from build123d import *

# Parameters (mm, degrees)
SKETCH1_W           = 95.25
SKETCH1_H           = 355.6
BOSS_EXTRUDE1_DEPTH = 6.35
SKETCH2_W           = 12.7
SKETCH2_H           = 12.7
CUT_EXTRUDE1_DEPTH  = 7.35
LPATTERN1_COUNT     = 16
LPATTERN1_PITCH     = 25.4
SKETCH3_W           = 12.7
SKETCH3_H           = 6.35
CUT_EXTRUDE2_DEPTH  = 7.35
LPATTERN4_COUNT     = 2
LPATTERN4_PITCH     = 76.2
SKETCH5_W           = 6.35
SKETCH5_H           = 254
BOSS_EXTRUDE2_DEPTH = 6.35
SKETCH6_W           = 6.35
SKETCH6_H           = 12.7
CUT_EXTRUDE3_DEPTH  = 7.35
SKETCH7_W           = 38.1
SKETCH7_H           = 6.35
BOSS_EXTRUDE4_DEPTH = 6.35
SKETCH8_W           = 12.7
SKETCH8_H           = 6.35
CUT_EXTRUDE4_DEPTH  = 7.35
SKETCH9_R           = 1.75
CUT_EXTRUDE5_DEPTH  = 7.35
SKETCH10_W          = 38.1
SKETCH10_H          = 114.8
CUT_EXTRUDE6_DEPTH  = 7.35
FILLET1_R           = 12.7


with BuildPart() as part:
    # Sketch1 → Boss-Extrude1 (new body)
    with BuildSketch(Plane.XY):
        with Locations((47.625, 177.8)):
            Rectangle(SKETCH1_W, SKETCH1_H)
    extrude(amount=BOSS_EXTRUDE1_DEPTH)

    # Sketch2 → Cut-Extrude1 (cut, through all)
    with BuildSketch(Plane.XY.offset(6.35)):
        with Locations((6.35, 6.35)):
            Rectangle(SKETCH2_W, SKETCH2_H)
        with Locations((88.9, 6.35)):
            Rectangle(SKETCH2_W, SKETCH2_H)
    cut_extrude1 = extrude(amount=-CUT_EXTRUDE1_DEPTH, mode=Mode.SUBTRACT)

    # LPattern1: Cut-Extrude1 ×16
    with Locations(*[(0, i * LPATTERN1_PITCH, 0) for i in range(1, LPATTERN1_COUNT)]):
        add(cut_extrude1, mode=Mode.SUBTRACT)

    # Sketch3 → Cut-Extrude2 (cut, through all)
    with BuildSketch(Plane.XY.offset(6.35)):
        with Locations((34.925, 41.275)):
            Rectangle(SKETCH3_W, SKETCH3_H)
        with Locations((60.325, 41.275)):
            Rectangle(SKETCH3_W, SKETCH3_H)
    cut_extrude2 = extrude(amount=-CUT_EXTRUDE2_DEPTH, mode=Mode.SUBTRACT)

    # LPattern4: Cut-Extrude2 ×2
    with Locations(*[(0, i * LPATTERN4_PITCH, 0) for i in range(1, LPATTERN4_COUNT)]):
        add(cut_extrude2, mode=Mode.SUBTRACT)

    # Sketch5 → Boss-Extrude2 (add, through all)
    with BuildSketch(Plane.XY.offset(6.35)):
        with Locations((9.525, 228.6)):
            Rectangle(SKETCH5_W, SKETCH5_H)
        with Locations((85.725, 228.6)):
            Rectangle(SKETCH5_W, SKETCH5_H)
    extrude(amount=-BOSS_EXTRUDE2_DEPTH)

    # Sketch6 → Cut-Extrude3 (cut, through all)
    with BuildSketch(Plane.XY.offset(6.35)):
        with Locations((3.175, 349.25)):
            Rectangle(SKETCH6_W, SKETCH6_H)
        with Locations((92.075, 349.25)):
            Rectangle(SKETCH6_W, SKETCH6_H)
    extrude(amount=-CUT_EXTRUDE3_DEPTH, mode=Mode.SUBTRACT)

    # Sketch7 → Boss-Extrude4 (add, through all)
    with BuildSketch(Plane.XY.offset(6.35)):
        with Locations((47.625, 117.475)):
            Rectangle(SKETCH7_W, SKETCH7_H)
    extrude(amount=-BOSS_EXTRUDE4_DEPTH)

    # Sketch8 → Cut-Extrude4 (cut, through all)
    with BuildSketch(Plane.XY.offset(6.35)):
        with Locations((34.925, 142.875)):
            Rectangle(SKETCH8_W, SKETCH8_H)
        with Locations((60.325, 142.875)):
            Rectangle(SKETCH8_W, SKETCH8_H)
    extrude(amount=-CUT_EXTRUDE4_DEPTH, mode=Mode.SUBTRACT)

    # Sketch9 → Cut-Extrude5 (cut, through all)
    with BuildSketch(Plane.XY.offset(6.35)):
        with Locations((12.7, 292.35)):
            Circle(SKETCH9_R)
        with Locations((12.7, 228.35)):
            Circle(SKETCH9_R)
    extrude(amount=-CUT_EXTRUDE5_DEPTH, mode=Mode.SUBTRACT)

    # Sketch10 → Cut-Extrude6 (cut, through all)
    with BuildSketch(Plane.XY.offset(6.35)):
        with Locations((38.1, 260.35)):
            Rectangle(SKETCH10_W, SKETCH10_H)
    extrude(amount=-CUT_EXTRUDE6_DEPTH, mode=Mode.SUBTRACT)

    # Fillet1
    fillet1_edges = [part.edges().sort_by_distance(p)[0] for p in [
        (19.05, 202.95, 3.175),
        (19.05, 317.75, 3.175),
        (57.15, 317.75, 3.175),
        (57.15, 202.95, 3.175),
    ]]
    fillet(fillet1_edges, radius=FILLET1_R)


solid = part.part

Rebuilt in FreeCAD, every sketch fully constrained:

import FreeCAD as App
import Part
import Sketcher
from FreeCAD import Vector
Q = App.Units.Quantity


def edges_at(feature, points):
    """Names of the edges that pass closest to the given points."""
    edges = feature.Shape.Edges
    near = lambda p: min(range(len(edges)), key=lambda i: edges[i].distToShape(Part.Vertex(*p))[0])
    return sorted({f"Edge{near(p) + 1}" for p in points})

doc = App.newDocument("Part")
params = doc.addObject("Spreadsheet::Sheet", "Params")
for row, (alias, value) in enumerate([
    ("sketch1_height", "14 in"),
    ("sketch1_width", "3.75 in"),
    ("pad1_length", "0.25 in"),
    ("sketch2_width", "0.5 in"),
    ("linearpattern_pitch", "1 in"),
    ("sketch3_width", "0.5 in"),
    ("sketch3_height", "0.25 in"),
    ("linearpattern2_pitch", "3 in"),
    ("sketch4_height", "10 in"),
    ("sketch4_width", "0.25 in"),
    ("sketch5_height", "0.5 in"),
    ("sketch5_width", "0.25 in"),
    ("sketch6_width", "1.5 in"),
    ("sketch6_height", "0.25 in"),
    ("sketch7_width", "0.5 in"),
    ("sketch7_height", "0.25 in"),
    ("sketch9_width", "1.5 in"),
    ("fillet_radius", "0.5 in"),
], start=1):
    params.set(f"A{row}", alias)
    params.set(f"B{row}", "=" + value)
    params.setAlias(f"B{row}", alias)

body = doc.addObject("PartDesign::Body", "Body")

# Sketch on XY plane
sketch1 = body.newObject("Sketcher::SketchObject", "Sketch")
sketch1.AttachmentSupport = (doc.getObject("XY_Plane"), [""])
sketch1.MapMode = "FlatFace"
sketch1.addGeometry([
    Part.LineSegment(Vector(0, 356, 0), Vector(0, 0, 0)),
    Part.LineSegment(Vector(0, 0, 0), Vector(95, 0, 0)),
    Part.LineSegment(Vector(95, 0, 0), Vector(95, 356, 0)),
    Part.LineSegment(Vector(95, 356, 0), Vector(0, 356, 0)),
], False)
sketch1.addConstraint([
    Sketcher.Constraint("Coincident", 0, 2, 1, 1),
    Sketcher.Constraint("Coincident", 1, 2, 2, 1),
    Sketcher.Constraint("Coincident", 2, 2, 3, 1),
    Sketcher.Constraint("Coincident", 3, 2, 0, 1),
    Sketcher.Constraint("Vertical", 0),
    Sketcher.Constraint("Horizontal", 1),
    Sketcher.Constraint("Vertical", 2),
    Sketcher.Constraint("Horizontal", 3),
    Sketcher.Constraint("Coincident", 0, 2, -1, 1),
    Sketcher.Constraint("DistanceY", 0, 2, 0, 1, Q("14 in")),
    Sketcher.Constraint("DistanceX", 1, 1, 1, 2, Q("3.75 in")),
])
sketch1.setExpression("Constraints[9]", "Params.sketch1_height")
sketch1.setExpression("Constraints[10]", "Params.sketch1_width")
pad1 = body.newObject("PartDesign::Pad", "Pad")
pad1.Profile = sketch1
pad1.setExpression("Length", "Params.pad1_length")

# Sketch on XY plane
sketch2 = body.newObject("Sketcher::SketchObject", "Sketch001")
sketch2.AttachmentSupport = (doc.getObject("XY_Plane"), [""])
sketch2.MapMode = "FlatFace"
sketch2.AttachmentOffset = App.Placement(Vector(0, 0, 0.25 * 25.4), App.Rotation())
sketch2.addGeometry([
    Part.LineSegment(Vector(0, 13, 0), Vector(0, 0, 0)),  # 0
    Part.LineSegment(Vector(0, 0, 0), Vector(13, 0, 0)),  # 1
    Part.LineSegment(Vector(13, 0, 0), Vector(13, 13, 0)),  # 2
    Part.LineSegment(Vector(13, 13, 0), Vector(0, 13, 0)),  # 3
    Part.LineSegment(Vector(83, 13, 0), Vector(83, 0, 0)),  # 4
    Part.LineSegment(Vector(83, 0, 0), Vector(95, 0, 0)),  # 5
    Part.LineSegment(Vector(95, 0, 0), Vector(95, 13, 0)),  # 6
    Part.LineSegment(Vector(95, 13, 0), Vector(83, 13, 0)),  # 7
], False)
sketch2.addConstraint([
    Sketcher.Constraint("Coincident", 0, 2, 1, 1),
    Sketcher.Constraint("Coincident", 1, 2, 2, 1),
    Sketcher.Constraint("Coincident", 2, 2, 3, 1),
    Sketcher.Constraint("Coincident", 3, 2, 0, 1),
    Sketcher.Constraint("Coincident", 4, 2, 5, 1),
    Sketcher.Constraint("Coincident", 5, 2, 6, 1),
    Sketcher.Constraint("Coincident", 6, 2, 7, 1),
    Sketcher.Constraint("Coincident", 7, 2, 4, 1),
    Sketcher.Constraint("Vertical", 0),
    Sketcher.Constraint("Horizontal", 1),
    Sketcher.Constraint("Vertical", 2),
    Sketcher.Constraint("Horizontal", 3),
    Sketcher.Constraint("Vertical", 4),
    Sketcher.Constraint("Horizontal", 5),
    Sketcher.Constraint("Vertical", 6),
    Sketcher.Constraint("Horizontal", 7),
    Sketcher.Constraint("Coincident", 0, 2, -1, 1),
    Sketcher.Constraint("PointOnObject", 4, 2, -1),
    Sketcher.Constraint("Horizontal", 3, 2, 6, 2),
    Sketcher.Constraint("Equal", 3, 5),
    Sketcher.Constraint("Equal", 7, 0),
    Sketcher.Constraint("DistanceX", 1, 1, 1, 2, Q("0.5 in")),
    Sketcher.Constraint("DistanceX", -1, 1, 4, 2, Q("3.25 in")),
])
sketch2.setExpression("Constraints[21]", "Params.sketch2_width")
pocket1 = body.newObject("PartDesign::Pocket", "Pocket")
pocket1.Profile = sketch2
pocket1.Type = "ThroughAll"
doc.recompute()

linearpattern = body.newObject("PartDesign::LinearPattern", "LinearPattern")
linearpattern.Originals = [pocket1]
linearpattern.Direction = (doc.getObject("Y_Axis"), [""])
linearpattern.Mode = "offset"
linearpattern.setExpression("Offset", "Params.linearpattern_pitch")
linearpattern.Occurrences = 16
body.Tip = linearpattern

# Sketch on XY plane
sketch3 = body.newObject("Sketcher::SketchObject", "Sketch002")
sketch3.AttachmentSupport = (doc.getObject("XY_Plane"), [""])
sketch3.MapMode = "FlatFace"
sketch3.AttachmentOffset = App.Placement(Vector(0, 0, 0.25 * 25.4), App.Rotation())
sketch3.addGeometry([
    Part.LineSegment(Vector(29, 44, 0), Vector(29, 38, 0)),  # 0
    Part.LineSegment(Vector(29, 38, 0), Vector(41, 38, 0)),  # 1
    Part.LineSegment(Vector(41, 38, 0), Vector(41, 44, 0)),  # 2
    Part.LineSegment(Vector(41, 44, 0), Vector(29, 44, 0)),  # 3
    Part.LineSegment(Vector(54, 44, 0), Vector(54, 38, 0)),  # 4
    Part.LineSegment(Vector(54, 38, 0), Vector(67, 38, 0)),  # 5
    Part.LineSegment(Vector(67, 38, 0), Vector(67, 44, 0)),  # 6
    Part.LineSegment(Vector(67, 44, 0), Vector(54, 44, 0)),  # 7
], False)
sketch3.addConstraint([
    Sketcher.Constraint("Coincident", 0, 2, 1, 1),
    Sketcher.Constraint("Coincident", 1, 2, 2, 1),
    Sketcher.Constraint("Coincident", 2, 2, 3, 1),
    Sketcher.Constraint("Coincident", 3, 2, 0, 1),
    Sketcher.Constraint("Coincident", 4, 2, 5, 1),
    Sketcher.Constraint("Coincident", 5, 2, 6, 1),
    Sketcher.Constraint("Coincident", 6, 2, 7, 1),
    Sketcher.Constraint("Coincident", 7, 2, 4, 1),
    Sketcher.Constraint("Vertical", 0),
    Sketcher.Constraint("Horizontal", 1),
    Sketcher.Constraint("Vertical", 2),
    Sketcher.Constraint("Horizontal", 3),
    Sketcher.Constraint("Vertical", 4),
    Sketcher.Constraint("Horizontal", 5),
    Sketcher.Constraint("Vertical", 6),
    Sketcher.Constraint("Horizontal", 7),
    Sketcher.Constraint("Horizontal", 1, 2, 4, 2),
    Sketcher.Constraint("Horizontal", 3, 2, 6, 2),
    Sketcher.Constraint("Equal", 3, 5),
    Sketcher.Constraint("DistanceX", 1, 1, 1, 2, Q("0.5 in")),
    Sketcher.Constraint("DistanceX", 0, 2, 4, 2, Q("1 in")),
    Sketcher.Constraint("DistanceY", 0, 2, 0, 1, Q("0.25 in")),
    Sketcher.Constraint("DistanceY", -1, 1, 0, 2, Q("1.5 in")),
    Sketcher.Constraint("DistanceX", -1, 1, 0, 2, Q("1.125 in")),
])
sketch3.setExpression("Constraints[19]", "Params.sketch3_width")
sketch3.setExpression("Constraints[21]", "Params.sketch3_height")
pocket2 = body.newObject("PartDesign::Pocket", "Pocket001")
pocket2.Profile = sketch3
pocket2.Type = "ThroughAll"
doc.recompute()

linearpattern2 = body.newObject("PartDesign::LinearPattern", "LinearPattern001")
linearpattern2.Originals = [pocket2]
linearpattern2.Direction = (doc.getObject("Y_Axis"), [""])
linearpattern2.Mode = "offset"
linearpattern2.setExpression("Offset", "Params.linearpattern2_pitch")
linearpattern2.Occurrences = 2
body.Tip = linearpattern2

# Sketch on XY plane
sketch4 = body.newObject("Sketcher::SketchObject", "Sketch003")
sketch4.AttachmentSupport = (doc.getObject("XY_Plane"), [""])
sketch4.MapMode = "FlatFace"
sketch4.AttachmentOffset = App.Placement(Vector(0, 0, 0.25 * 25.4), App.Rotation())
sketch4.addGeometry([
    Part.LineSegment(Vector(6, 356, 0), Vector(6, 102, 0)),  # 0
    Part.LineSegment(Vector(6, 102, 0), Vector(13, 102, 0)),  # 1
    Part.LineSegment(Vector(13, 102, 0), Vector(13, 356, 0)),  # 2
    Part.LineSegment(Vector(13, 356, 0), Vector(6, 356, 0)),  # 3
    Part.LineSegment(Vector(83, 356, 0), Vector(83, 102, 0)),  # 4
    Part.LineSegment(Vector(83, 102, 0), Vector(89, 102, 0)),  # 5
    Part.LineSegment(Vector(89, 102, 0), Vector(89, 356, 0)),  # 6
    Part.LineSegment(Vector(89, 356, 0), Vector(83, 356, 0)),  # 7
], False)
sketch4.addConstraint([
    Sketcher.Constraint("Coincident", 0, 2, 1, 1),
    Sketcher.Constraint("Coincident", 1, 2, 2, 1),
    Sketcher.Constraint("Coincident", 2, 2, 3, 1),
    Sketcher.Constraint("Coincident", 3, 2, 0, 1),
    Sketcher.Constraint("Coincident", 4, 2, 5, 1),
    Sketcher.Constraint("Coincident", 5, 2, 6, 1),
    Sketcher.Constraint("Coincident", 6, 2, 7, 1),
    Sketcher.Constraint("Coincident", 7, 2, 4, 1),
    Sketcher.Constraint("Vertical", 0),
    Sketcher.Constraint("Horizontal", 1),
    Sketcher.Constraint("Vertical", 2),
    Sketcher.Constraint("Horizontal", 3),
    Sketcher.Constraint("Vertical", 4),
    Sketcher.Constraint("Horizontal", 5),
    Sketcher.Constraint("Vertical", 6),
    Sketcher.Constraint("Horizontal", 7),
    Sketcher.Constraint("Horizontal", 1, 2, 4, 2),
    Sketcher.Constraint("Horizontal", 3, 2, 6, 2),
    Sketcher.Constraint("Equal", 3, 5),
    Sketcher.Constraint("DistanceY", 0, 2, 0, 1, Q("10 in")),
    Sketcher.Constraint("DistanceY", -1, 1, 0, 2, Q("4 in")),
    Sketcher.Constraint("DistanceX", 0, 2, 4, 2, Q("3 in")),
    Sketcher.Constraint("DistanceX", 1, 1, 1, 2, Q("0.25 in")),
    Sketcher.Constraint("DistanceX", -1, 1, 1, 2, Q("0.5 in")),
])
sketch4.setExpression("Constraints[19]", "Params.sketch4_height")
sketch4.setExpression("Constraints[22]", "Params.sketch4_width")
pad2 = body.newObject("PartDesign::Pad", "Pad001")
pad2.Profile = sketch4
pad2.Type = "UpToLast"
pad2.Reversed = True

# Sketch on XY plane
sketch5 = body.newObject("Sketcher::SketchObject", "Sketch004")
sketch5.AttachmentSupport = (doc.getObject("XY_Plane"), [""])
sketch5.MapMode = "FlatFace"
sketch5.AttachmentOffset = App.Placement(Vector(0, 0, 0.25 * 25.4), App.Rotation())
sketch5.addGeometry([
    Part.LineSegment(Vector(0, 356, 0), Vector(0, 343, 0)),  # 0
    Part.LineSegment(Vector(0, 343, 0), Vector(6, 343, 0)),  # 1
    Part.LineSegment(Vector(6, 343, 0), Vector(6, 356, 0)),  # 2
    Part.LineSegment(Vector(6, 356, 0), Vector(0, 356, 0)),  # 3
    Part.LineSegment(Vector(89, 356, 0), Vector(89, 343, 0)),  # 4
    Part.LineSegment(Vector(89, 343, 0), Vector(95, 343, 0)),  # 5
    Part.LineSegment(Vector(95, 343, 0), Vector(95, 356, 0)),  # 6
    Part.LineSegment(Vector(95, 356, 0), Vector(89, 356, 0)),  # 7
], False)
sketch5.addConstraint([
    Sketcher.Constraint("Coincident", 0, 2, 1, 1),
    Sketcher.Constraint("Coincident", 1, 2, 2, 1),
    Sketcher.Constraint("Coincident", 2, 2, 3, 1),
    Sketcher.Constraint("Coincident", 3, 2, 0, 1),
    Sketcher.Constraint("Coincident", 4, 2, 5, 1),
    Sketcher.Constraint("Coincident", 5, 2, 6, 1),
    Sketcher.Constraint("Coincident", 6, 2, 7, 1),
    Sketcher.Constraint("Coincident", 7, 2, 4, 1),
    Sketcher.Constraint("Vertical", 0),
    Sketcher.Constraint("Horizontal", 1),
    Sketcher.Constraint("Vertical", 2),
    Sketcher.Constraint("Horizontal", 3),
    Sketcher.Constraint("Vertical", 4),
    Sketcher.Constraint("Horizontal", 5),
    Sketcher.Constraint("Vertical", 6),
    Sketcher.Constraint("Horizontal", 7),
    Sketcher.Constraint("PointOnObject", 0, 2, -2),
    Sketcher.Constraint("Horizontal", 1, 2, 4, 2),
    Sketcher.Constraint("Horizontal", 3, 2, 6, 2),
    Sketcher.Constraint("Equal", 3, 5),
    Sketcher.Constraint("DistanceY", 0, 2, 0, 1, Q("0.5 in")),
    Sketcher.Constraint("DistanceY", -1, 1, 2, 2, Q("14 in")),
    Sketcher.Constraint("DistanceX", 1, 1, 1, 2, Q("0.25 in")),
    Sketcher.Constraint("DistanceX", -1, 1, 4, 2, Q("3.5 in")),
])
sketch5.setExpression("Constraints[20]", "Params.sketch5_height")
sketch5.setExpression("Constraints[22]", "Params.sketch5_width")
pocket3 = body.newObject("PartDesign::Pocket", "Pocket002")
pocket3.Profile = sketch5
pocket3.Type = "ThroughAll"

# Sketch on XY plane
sketch6 = body.newObject("Sketcher::SketchObject", "Sketch005")
sketch6.AttachmentSupport = (doc.getObject("XY_Plane"), [""])
sketch6.MapMode = "FlatFace"
sketch6.AttachmentOffset = App.Placement(Vector(0, 0, 0.25 * 25.4), App.Rotation())
sketch6.addGeometry([
    Part.LineSegment(Vector(29, 121, 0), Vector(29, 114, 0)),
    Part.LineSegment(Vector(29, 114, 0), Vector(67, 114, 0)),
    Part.LineSegment(Vector(67, 114, 0), Vector(67, 121, 0)),
    Part.LineSegment(Vector(67, 121, 0), Vector(29, 121, 0)),
], False)
sketch6.addConstraint([
    Sketcher.Constraint("Coincident", 0, 2, 1, 1),
    Sketcher.Constraint("Coincident", 1, 2, 2, 1),
    Sketcher.Constraint("Coincident", 2, 2, 3, 1),
    Sketcher.Constraint("Coincident", 3, 2, 0, 1),
    Sketcher.Constraint("Vertical", 0),
    Sketcher.Constraint("Horizontal", 1),
    Sketcher.Constraint("Vertical", 2),
    Sketcher.Constraint("Horizontal", 3),
    Sketcher.Constraint("DistanceX", 1, 1, 1, 2, Q("1.5 in")),
    Sketcher.Constraint("DistanceY", 0, 2, 0, 1, Q("0.25 in")),
    Sketcher.Constraint("DistanceY", -1, 1, 0, 2, Q("4.5 in")),
    Sketcher.Constraint("DistanceX", -1, 1, 0, 2, Q("1.125 in")),
])
sketch6.setExpression("Constraints[8]", "Params.sketch6_width")
sketch6.setExpression("Constraints[9]", "Params.sketch6_height")
pad3 = body.newObject("PartDesign::Pad", "Pad002")
pad3.Profile = sketch6
pad3.Type = "UpToLast"
pad3.Reversed = True

# Sketch on XY plane
sketch7 = body.newObject("Sketcher::SketchObject", "Sketch006")
sketch7.AttachmentSupport = (doc.getObject("XY_Plane"), [""])
sketch7.MapMode = "FlatFace"
sketch7.AttachmentOffset = App.Placement(Vector(0, 0, 0.25 * 25.4), App.Rotation())
sketch7.addGeometry([
    Part.LineSegment(Vector(29, 146, 0), Vector(29, 140, 0)),  # 0
    Part.LineSegment(Vector(29, 140, 0), Vector(41, 140, 0)),  # 1
    Part.LineSegment(Vector(41, 140, 0), Vector(41, 146, 0)),  # 2
    Part.LineSegment(Vector(41, 146, 0), Vector(29, 146, 0)),  # 3
    Part.LineSegment(Vector(54, 146, 0), Vector(54, 140, 0)),  # 4
    Part.LineSegment(Vector(54, 140, 0), Vector(67, 140, 0)),  # 5
    Part.LineSegment(Vector(67, 140, 0), Vector(67, 146, 0)),  # 6
    Part.LineSegment(Vector(67, 146, 0), Vector(54, 146, 0)),  # 7
], False)
sketch7.addConstraint([
    Sketcher.Constraint("Coincident", 0, 2, 1, 1),
    Sketcher.Constraint("Coincident", 1, 2, 2, 1),
    Sketcher.Constraint("Coincident", 2, 2, 3, 1),
    Sketcher.Constraint("Coincident", 3, 2, 0, 1),
    Sketcher.Constraint("Coincident", 4, 2, 5, 1),
    Sketcher.Constraint("Coincident", 5, 2, 6, 1),
    Sketcher.Constraint("Coincident", 6, 2, 7, 1),
    Sketcher.Constraint("Coincident", 7, 2, 4, 1),
    Sketcher.Constraint("Vertical", 0),
    Sketcher.Constraint("Horizontal", 1),
    Sketcher.Constraint("Vertical", 2),
    Sketcher.Constraint("Horizontal", 3),
    Sketcher.Constraint("Vertical", 4),
    Sketcher.Constraint("Horizontal", 5),
    Sketcher.Constraint("Vertical", 6),
    Sketcher.Constraint("Horizontal", 7),
    Sketcher.Constraint("Horizontal", 1, 2, 4, 2),
    Sketcher.Constraint("Horizontal", 3, 2, 6, 2),
    Sketcher.Constraint("Equal", 3, 5),
    Sketcher.Constraint("DistanceX", 1, 1, 1, 2, Q("0.5 in")),
    Sketcher.Constraint("DistanceX", 0, 2, 4, 2, Q("1 in")),
    Sketcher.Constraint("DistanceY", 0, 2, 0, 1, Q("0.25 in")),
    Sketcher.Constraint("DistanceY", -1, 1, 0, 2, Q("5.5 in")),
    Sketcher.Constraint("DistanceX", -1, 1, 0, 2, Q("1.125 in")),
])
sketch7.setExpression("Constraints[19]", "Params.sketch7_width")
sketch7.setExpression("Constraints[21]", "Params.sketch7_height")
pocket4 = body.newObject("PartDesign::Pocket", "Pocket003")
pocket4.Profile = sketch7
pocket4.Type = "ThroughAll"

# Sketch on XY plane
sketch8 = body.newObject("Sketcher::SketchObject", "Sketch007")
sketch8.AttachmentSupport = (doc.getObject("XY_Plane"), [""])
sketch8.MapMode = "FlatFace"
sketch8.AttachmentOffset = App.Placement(Vector(0, 0, 0.25 * 25.4), App.Rotation())
sketch8.addGeometry([
    Part.Circle(Vector(12.7, 292.4, 0), Vector(0, 0, 1), 1.8),
    Part.Circle(Vector(12.7, 228.3, 0), Vector(0, 0, 1), 1.8),
], False)
sketch8.addConstraint([
    Sketcher.Constraint("Equal", 0, 1),
    Sketcher.Constraint("Vertical", 0, 3, 1, 3),
    Sketcher.Constraint("DistanceX", -1, 1, 0, 3, Q("0.5 in")),
    Sketcher.Constraint("Diameter", 0, 3.5),
    Sketcher.Constraint("DistanceY", -1, 1, 0, 3, 292.35),
    Sketcher.Constraint("DistanceY", -1, 1, 1, 3, 228.35),
])
pocket5 = body.newObject("PartDesign::Pocket", "Pocket004")
pocket5.Profile = sketch8
pocket5.Type = "ThroughAll"

# Sketch on XY plane
sketch9 = body.newObject("Sketcher::SketchObject", "Sketch008")
sketch9.AttachmentSupport = (doc.getObject("XY_Plane"), [""])
sketch9.MapMode = "FlatFace"
sketch9.AttachmentOffset = App.Placement(Vector(0, 0, 0.25 * 25.4), App.Rotation())
sketch9.addGeometry([
    Part.LineSegment(Vector(19, 318, 0), Vector(19, 203, 0)),
    Part.LineSegment(Vector(19, 203, 0), Vector(57, 203, 0)),
    Part.LineSegment(Vector(57, 203, 0), Vector(57, 318, 0)),
    Part.LineSegment(Vector(57, 318, 0), Vector(19, 318, 0)),
], False)
sketch9.addConstraint([
    Sketcher.Constraint("Coincident", 0, 2, 1, 1),
    Sketcher.Constraint("Coincident", 1, 2, 2, 1),
    Sketcher.Constraint("Coincident", 2, 2, 3, 1),
    Sketcher.Constraint("Coincident", 3, 2, 0, 1),
    Sketcher.Constraint("Vertical", 0),
    Sketcher.Constraint("Horizontal", 1),
    Sketcher.Constraint("Vertical", 2),
    Sketcher.Constraint("Horizontal", 3),
    Sketcher.Constraint("DistanceX", 1, 1, 1, 2, Q("1.5 in")),
    Sketcher.Constraint("DistanceX", -1, 1, 0, 2, Q("0.75 in")),
    Sketcher.Constraint("DistanceY", 0, 2, 0, 1, 114.8),
    Sketcher.Constraint("DistanceY", -1, 1, 0, 2, 202.95),
])
sketch9.setExpression("Constraints[8]", "Params.sketch9_width")
pocket6 = body.newObject("PartDesign::Pocket", "Pocket005")
pocket6.Profile = sketch9
pocket6.Type = "ThroughAll"
doc.recompute()

fillet = body.newObject("PartDesign::Fillet", "Fillet")
fillet.Base = (pocket6, edges_at(pocket6, [
    (19.05, 202.95, 3.175),
    (19.05, 317.75, 3.175),
    (57.15, 317.75, 3.175),
    (57.15, 202.95, 3.175),
]))
fillet.setExpression("Radius", "Params.fillet_radius")

doc.recompute()
